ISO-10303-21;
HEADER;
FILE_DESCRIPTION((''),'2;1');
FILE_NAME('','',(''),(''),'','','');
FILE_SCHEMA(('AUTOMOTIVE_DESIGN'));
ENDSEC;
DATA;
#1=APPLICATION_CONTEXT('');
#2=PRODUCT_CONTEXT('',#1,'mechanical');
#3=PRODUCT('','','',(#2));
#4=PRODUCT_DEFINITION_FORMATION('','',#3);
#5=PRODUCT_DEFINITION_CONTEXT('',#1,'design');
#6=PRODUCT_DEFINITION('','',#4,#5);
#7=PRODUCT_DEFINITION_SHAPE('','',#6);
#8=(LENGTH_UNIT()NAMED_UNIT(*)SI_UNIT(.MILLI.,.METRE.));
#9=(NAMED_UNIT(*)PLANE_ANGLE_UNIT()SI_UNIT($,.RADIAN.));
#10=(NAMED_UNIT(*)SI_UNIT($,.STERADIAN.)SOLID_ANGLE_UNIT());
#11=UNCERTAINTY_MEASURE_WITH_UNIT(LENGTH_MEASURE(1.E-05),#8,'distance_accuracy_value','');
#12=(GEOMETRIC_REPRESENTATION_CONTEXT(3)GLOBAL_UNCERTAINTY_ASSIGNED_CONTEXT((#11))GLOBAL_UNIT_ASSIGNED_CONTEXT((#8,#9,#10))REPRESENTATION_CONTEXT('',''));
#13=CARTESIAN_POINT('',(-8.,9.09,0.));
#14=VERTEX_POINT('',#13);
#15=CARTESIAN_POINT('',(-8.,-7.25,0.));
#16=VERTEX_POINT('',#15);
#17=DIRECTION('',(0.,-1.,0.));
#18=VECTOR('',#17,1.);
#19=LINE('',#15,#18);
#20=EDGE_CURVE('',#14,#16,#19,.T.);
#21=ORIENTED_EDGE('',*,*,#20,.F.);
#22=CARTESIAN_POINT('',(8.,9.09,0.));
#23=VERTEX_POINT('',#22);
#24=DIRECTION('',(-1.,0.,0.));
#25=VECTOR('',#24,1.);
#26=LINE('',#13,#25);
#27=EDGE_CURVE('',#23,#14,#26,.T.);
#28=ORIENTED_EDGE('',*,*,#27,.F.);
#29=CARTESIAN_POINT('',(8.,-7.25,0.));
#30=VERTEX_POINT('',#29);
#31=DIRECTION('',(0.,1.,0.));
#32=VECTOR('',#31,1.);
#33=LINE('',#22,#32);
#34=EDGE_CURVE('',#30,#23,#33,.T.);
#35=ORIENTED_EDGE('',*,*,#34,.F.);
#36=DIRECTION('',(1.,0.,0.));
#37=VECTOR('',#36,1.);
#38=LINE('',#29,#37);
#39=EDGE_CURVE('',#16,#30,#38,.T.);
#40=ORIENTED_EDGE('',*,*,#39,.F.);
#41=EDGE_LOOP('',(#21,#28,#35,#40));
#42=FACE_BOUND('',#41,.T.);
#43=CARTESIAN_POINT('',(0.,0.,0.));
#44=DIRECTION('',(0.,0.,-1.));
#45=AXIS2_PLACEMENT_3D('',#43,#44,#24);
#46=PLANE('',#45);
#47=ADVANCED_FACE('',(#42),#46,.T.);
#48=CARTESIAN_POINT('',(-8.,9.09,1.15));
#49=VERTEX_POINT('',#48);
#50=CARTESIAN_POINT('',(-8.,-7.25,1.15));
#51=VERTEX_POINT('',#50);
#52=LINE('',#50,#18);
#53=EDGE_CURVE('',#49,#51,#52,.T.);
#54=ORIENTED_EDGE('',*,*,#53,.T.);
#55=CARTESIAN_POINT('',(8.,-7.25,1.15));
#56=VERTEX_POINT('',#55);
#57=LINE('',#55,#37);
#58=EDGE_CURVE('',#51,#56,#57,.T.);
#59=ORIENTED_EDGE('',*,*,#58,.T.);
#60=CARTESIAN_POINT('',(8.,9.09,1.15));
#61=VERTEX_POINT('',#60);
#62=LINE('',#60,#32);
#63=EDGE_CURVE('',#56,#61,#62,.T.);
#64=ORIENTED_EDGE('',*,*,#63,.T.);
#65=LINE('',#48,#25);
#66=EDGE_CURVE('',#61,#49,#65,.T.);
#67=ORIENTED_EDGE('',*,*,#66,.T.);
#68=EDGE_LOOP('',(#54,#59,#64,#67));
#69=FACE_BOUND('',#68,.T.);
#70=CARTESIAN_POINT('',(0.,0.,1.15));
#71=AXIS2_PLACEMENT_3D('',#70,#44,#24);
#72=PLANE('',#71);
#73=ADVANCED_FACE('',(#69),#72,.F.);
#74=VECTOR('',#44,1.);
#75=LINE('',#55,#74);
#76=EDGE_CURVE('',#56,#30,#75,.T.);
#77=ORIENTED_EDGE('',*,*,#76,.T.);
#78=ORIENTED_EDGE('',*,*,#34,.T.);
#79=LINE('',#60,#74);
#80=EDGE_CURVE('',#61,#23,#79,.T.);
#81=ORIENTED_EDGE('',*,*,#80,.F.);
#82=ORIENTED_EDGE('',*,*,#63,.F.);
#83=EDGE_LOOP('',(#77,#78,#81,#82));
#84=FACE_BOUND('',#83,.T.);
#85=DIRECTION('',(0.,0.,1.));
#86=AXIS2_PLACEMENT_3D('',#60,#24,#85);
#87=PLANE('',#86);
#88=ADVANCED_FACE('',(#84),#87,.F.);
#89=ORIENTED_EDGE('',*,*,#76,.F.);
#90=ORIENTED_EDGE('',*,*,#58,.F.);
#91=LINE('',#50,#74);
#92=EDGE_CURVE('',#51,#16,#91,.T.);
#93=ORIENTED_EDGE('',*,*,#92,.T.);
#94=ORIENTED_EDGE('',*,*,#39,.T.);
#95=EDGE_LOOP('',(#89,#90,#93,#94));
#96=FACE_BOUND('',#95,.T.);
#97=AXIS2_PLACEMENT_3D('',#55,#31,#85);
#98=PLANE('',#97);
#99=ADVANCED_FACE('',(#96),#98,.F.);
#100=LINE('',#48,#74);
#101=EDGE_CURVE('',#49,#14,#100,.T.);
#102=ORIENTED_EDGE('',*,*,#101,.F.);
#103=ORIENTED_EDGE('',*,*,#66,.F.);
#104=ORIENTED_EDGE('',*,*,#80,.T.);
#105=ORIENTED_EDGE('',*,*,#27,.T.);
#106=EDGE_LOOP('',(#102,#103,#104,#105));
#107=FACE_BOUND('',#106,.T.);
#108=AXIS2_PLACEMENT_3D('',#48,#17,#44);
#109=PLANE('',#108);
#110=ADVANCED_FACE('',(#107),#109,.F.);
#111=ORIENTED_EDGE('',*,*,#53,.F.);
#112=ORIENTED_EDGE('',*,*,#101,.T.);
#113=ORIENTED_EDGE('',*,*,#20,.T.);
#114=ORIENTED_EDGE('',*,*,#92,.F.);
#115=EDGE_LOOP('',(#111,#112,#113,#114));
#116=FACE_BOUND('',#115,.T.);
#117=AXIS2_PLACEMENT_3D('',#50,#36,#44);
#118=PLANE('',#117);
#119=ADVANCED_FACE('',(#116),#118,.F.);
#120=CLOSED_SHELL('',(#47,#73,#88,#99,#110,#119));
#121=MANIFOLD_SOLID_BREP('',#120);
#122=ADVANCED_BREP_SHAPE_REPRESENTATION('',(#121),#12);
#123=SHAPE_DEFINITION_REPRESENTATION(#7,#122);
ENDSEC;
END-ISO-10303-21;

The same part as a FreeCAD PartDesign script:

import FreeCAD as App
import Part
import Sketcher
Q = App.Units.Quantity

doc = App.newDocument("Part")
body = doc.addObject("PartDesign::Body", "Body")

sketch1 = body.newObject("Sketcher::SketchObject", "Sketch")
sketch1.AttachmentSupport = (doc.getObject("XY_Plane"), [""])
sketch1.MapMode = "FlatFace"
sketch1.addGeometry([
    Part.LineSegment(App.Vector(-8, 9, 0), App.Vector(-8, -7, 0)),
    Part.LineSegment(App.Vector(-8, -7, 0), App.Vector(8, -7, 0)),
    Part.LineSegment(App.Vector(8, -7, 0), App.Vector(8, 9, 0)),
    Part.LineSegment(App.Vector(8, 9, 0), App.Vector(-8, 9, 0)),
], False)
sketch1.addConstraint([
    Sketcher.Constraint("Coincident", 0, 2, 1, 1),
    Sketcher.Constraint("Coincident", 1, 2, 2, 1),
    Sketcher.Constraint("Coincident", 2, 2, 3, 1),
    Sketcher.Constraint("Coincident", 3, 2, 0, 1),
    Sketcher.Constraint("Vertical", 0),
    Sketcher.Constraint("Horizontal", 1),
    Sketcher.Constraint("Vertical", 2),
    Sketcher.Constraint("Horizontal", 3),
    Sketcher.Constraint("DistanceX", 1, 1, 1, 2, Q("16 mm")),
    Sketcher.Constraint("DistanceX", 0, 2, -1, 1, Q("8 mm")),
    Sketcher.Constraint("DistanceY", 0, 2, 0, 1, Q("16.34 mm")),
    Sketcher.Constraint("DistanceY", 0, 2, -1, 1, Q("7.25 mm")),
])
pad1 = body.newObject("PartDesign::Pad", "Pad")
pad1.Profile = sketch1
pad1.Length = 1.15

doc.recompute()
